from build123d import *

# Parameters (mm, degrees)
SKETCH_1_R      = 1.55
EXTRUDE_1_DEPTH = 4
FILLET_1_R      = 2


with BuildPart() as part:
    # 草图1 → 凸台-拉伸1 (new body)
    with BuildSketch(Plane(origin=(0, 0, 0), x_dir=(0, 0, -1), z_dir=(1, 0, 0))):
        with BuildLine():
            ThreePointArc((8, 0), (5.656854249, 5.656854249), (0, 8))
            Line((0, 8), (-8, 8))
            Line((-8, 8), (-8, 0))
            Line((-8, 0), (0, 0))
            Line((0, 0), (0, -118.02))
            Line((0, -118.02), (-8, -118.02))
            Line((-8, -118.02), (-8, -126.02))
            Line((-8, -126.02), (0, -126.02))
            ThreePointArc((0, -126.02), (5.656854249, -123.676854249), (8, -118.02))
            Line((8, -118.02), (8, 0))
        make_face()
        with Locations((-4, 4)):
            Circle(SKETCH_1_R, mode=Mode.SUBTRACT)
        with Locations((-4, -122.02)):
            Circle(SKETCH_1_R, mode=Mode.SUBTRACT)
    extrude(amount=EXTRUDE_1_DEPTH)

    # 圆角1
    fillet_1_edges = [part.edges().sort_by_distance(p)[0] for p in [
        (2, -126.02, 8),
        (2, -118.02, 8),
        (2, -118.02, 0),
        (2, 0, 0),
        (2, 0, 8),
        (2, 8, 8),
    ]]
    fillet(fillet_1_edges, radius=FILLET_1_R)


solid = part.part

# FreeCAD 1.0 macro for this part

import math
import FreeCAD as App
import Part
import Sketcher
from FreeCAD import Vector


def edges_at(feature, points):
    """Names of the edges that pass closest to the given points."""
    edges = feature.Shape.Edges
    near = lambda p: min(range(len(edges)), key=lambda i: edges[i].distToShape(Part.Vertex(*p))[0])
    return sorted({f"Edge{near(p) + 1}" for p in points})

doc = App.newDocument("Part")
body = doc.addObject("PartDesign::Body", "Body")

sketch1 = doc.addObject("Sketcher::SketchObject", "Sketch")
body.addObject(sketch1)
sketch1.AttachmentSupport = (doc.YZ_Plane, [""])
sketch1.MapMode = "FlatFace"
sketch1.addGeometry(Part.ArcOfCircle(Part.Circle(Vector(0, 0, 0), Vector(0, 0, 1), 8), math.radians(-90), math.radians(0)), False)
sketch1.addGeometry(Part.LineSegment(Vector(8, 0, 0), Vector(8, 8, 0)), False)
sketch1.addGeometry(Part.LineSegment(Vector(8, 8, 0), Vector(0, 8, 0)), False)
sketch1.addGeometry(Part.LineSegment(Vector(0, 8, 0), Vector(0, 0, 0)), False)
sketch1.addGeometry(Part.LineSegment(Vector(0, 0, 0), Vector(-118, 0, 0)), False)
sketch1.addGeometry(Part.LineSegment(Vector(-118, 0, 0), Vector(-118, 8, 0)), False)
sketch1.addGeometry(Part.LineSegment(Vector(-118, 8, 0), Vector(-126, 8, 0)), False)
sketch1.addGeometry(Part.LineSegment(Vector(-126, 8, 0), Vector(-126, 0, 0)), False)
sketch1.addGeometry(Part.ArcOfCircle(Part.Circle(Vector(-118, 0, 0), Vector(0, 0, 1), 8), math.radians(-180), math.radians(-90)), False)
sketch1.addGeometry(Part.LineSegment(Vector(-118, -8, 0), Vector(0, -8, 0)), False)
sketch1.addGeometry(Part.Circle(Vector(-122, 4, 0), Vector(0, 0, 1), 1.6), False)
sketch1.addGeometry(Part.Circle(Vector(4, 4, 0), Vector(0, 0, 1), 1.6), False)
sketch1.addConstraint(Sketcher.Constraint("Tangent", 0, 2, 1, 1))
sketch1.addConstraint(Sketcher.Constraint("Coincident", 1, 2, 2, 1))
sketch1.addConstraint(Sketcher.Constraint("Coincident", 2, 2, 3, 1))
sketch1.addConstraint(Sketcher.Constraint("Coincident", 3, 2, 4, 1))
sketch1.addConstraint(Sketcher.Constraint("Coincident", 4, 2, 5, 1))
sketch1.addConstraint(Sketcher.Constraint("Coincident", 5, 2, 6, 1))
sketch1.addConstraint(Sketcher.Constraint("Coincident", 6, 2, 7, 1))
sketch1.addConstraint(Sketcher.Constraint("Tangent", 7, 2, 8, 1))
sketch1.addConstraint(Sketcher.Constraint("Tangent", 8, 2, 9, 1))
sketch1.addConstraint(Sketcher.Constraint("Tangent", 9, 2, 0, 1))
sketch1.addConstraint(Sketcher.Constraint("Vertical", 1))
sketch1.addConstraint(Sketcher.Constraint("Horizontal", 2))
sketch1.addConstraint(Sketcher.Constraint("Vertical", 3))
sketch1.addConstraint(Sketcher.Constraint("Horizontal", 4))
sketch1.addConstraint(Sketcher.Constraint("Vertical", 5))
sketch1.addConstraint(Sketcher.Constraint("Horizontal", 6))
sketch1.addConstraint(Sketcher.Constraint("Vertical", 7))
sketch1.addConstraint(Sketcher.Constraint("Horizontal", 9))
sketch1.addConstraint(Sketcher.Constraint("Coincident", 0, 3, -1, 1))
sketch1.addConstraint(Sketcher.Constraint("Coincident", 3, 2, -1, 1))
sketch1.addConstraint(Sketcher.Constraint("Coincident", 4, 2, 8, 3))
sketch1.addConstraint(Sketcher.Constraint("Equal", 10, 11))
sketch1.addConstraint(Sketcher.Constraint("Horizontal", 10, 3, 11, 3))
sketch1.addConstraint(Sketcher.Constraint("Horizontal", 2, 2, 5, 2))
sketch1.addConstraint(Sketcher.Constraint("Equal", 6, 1))
sketch1.addConstraint(Sketcher.Constraint("Radius", 0, 8.0))
sketch1.addConstraint(Sketcher.Constraint("Diameter", 10, 3.1))
sketch1.addConstraint(Sketcher.Constraint("DistanceY", -1, 1, 10, 3, 4.0))
sketch1.addConstraint(Sketcher.Constraint("DistanceX", -1, 1, 11, 3, 4.0))
sketch1.addConstraint(Sketcher.Constraint("DistanceX", 10, 3, 8, 3, 4.0))
sketch1.addConstraint(Sketcher.Constraint("DistanceX", 4, 2, 4, 1, 118.02))
pad1 = doc.addObject("PartDesign::Pad", "Pad")
body.addObject(pad1)
pad1.Profile = sketch1
pad1.Length = 4
doc.recompute()

fillet = doc.addObject("PartDesign::Fillet", "Fillet")
body.addObject(fillet)
fillet.Base = (pad1, edges_at(pad1, [
    (2, -126.02, 8),
    (2, -118.02, 8),
    (2, -118.02, 0),
    (2, 0, 0),
    (2, 0, 8),
    (2, 8, 8),
]))
fillet.Radius = 2

doc.recompute()
